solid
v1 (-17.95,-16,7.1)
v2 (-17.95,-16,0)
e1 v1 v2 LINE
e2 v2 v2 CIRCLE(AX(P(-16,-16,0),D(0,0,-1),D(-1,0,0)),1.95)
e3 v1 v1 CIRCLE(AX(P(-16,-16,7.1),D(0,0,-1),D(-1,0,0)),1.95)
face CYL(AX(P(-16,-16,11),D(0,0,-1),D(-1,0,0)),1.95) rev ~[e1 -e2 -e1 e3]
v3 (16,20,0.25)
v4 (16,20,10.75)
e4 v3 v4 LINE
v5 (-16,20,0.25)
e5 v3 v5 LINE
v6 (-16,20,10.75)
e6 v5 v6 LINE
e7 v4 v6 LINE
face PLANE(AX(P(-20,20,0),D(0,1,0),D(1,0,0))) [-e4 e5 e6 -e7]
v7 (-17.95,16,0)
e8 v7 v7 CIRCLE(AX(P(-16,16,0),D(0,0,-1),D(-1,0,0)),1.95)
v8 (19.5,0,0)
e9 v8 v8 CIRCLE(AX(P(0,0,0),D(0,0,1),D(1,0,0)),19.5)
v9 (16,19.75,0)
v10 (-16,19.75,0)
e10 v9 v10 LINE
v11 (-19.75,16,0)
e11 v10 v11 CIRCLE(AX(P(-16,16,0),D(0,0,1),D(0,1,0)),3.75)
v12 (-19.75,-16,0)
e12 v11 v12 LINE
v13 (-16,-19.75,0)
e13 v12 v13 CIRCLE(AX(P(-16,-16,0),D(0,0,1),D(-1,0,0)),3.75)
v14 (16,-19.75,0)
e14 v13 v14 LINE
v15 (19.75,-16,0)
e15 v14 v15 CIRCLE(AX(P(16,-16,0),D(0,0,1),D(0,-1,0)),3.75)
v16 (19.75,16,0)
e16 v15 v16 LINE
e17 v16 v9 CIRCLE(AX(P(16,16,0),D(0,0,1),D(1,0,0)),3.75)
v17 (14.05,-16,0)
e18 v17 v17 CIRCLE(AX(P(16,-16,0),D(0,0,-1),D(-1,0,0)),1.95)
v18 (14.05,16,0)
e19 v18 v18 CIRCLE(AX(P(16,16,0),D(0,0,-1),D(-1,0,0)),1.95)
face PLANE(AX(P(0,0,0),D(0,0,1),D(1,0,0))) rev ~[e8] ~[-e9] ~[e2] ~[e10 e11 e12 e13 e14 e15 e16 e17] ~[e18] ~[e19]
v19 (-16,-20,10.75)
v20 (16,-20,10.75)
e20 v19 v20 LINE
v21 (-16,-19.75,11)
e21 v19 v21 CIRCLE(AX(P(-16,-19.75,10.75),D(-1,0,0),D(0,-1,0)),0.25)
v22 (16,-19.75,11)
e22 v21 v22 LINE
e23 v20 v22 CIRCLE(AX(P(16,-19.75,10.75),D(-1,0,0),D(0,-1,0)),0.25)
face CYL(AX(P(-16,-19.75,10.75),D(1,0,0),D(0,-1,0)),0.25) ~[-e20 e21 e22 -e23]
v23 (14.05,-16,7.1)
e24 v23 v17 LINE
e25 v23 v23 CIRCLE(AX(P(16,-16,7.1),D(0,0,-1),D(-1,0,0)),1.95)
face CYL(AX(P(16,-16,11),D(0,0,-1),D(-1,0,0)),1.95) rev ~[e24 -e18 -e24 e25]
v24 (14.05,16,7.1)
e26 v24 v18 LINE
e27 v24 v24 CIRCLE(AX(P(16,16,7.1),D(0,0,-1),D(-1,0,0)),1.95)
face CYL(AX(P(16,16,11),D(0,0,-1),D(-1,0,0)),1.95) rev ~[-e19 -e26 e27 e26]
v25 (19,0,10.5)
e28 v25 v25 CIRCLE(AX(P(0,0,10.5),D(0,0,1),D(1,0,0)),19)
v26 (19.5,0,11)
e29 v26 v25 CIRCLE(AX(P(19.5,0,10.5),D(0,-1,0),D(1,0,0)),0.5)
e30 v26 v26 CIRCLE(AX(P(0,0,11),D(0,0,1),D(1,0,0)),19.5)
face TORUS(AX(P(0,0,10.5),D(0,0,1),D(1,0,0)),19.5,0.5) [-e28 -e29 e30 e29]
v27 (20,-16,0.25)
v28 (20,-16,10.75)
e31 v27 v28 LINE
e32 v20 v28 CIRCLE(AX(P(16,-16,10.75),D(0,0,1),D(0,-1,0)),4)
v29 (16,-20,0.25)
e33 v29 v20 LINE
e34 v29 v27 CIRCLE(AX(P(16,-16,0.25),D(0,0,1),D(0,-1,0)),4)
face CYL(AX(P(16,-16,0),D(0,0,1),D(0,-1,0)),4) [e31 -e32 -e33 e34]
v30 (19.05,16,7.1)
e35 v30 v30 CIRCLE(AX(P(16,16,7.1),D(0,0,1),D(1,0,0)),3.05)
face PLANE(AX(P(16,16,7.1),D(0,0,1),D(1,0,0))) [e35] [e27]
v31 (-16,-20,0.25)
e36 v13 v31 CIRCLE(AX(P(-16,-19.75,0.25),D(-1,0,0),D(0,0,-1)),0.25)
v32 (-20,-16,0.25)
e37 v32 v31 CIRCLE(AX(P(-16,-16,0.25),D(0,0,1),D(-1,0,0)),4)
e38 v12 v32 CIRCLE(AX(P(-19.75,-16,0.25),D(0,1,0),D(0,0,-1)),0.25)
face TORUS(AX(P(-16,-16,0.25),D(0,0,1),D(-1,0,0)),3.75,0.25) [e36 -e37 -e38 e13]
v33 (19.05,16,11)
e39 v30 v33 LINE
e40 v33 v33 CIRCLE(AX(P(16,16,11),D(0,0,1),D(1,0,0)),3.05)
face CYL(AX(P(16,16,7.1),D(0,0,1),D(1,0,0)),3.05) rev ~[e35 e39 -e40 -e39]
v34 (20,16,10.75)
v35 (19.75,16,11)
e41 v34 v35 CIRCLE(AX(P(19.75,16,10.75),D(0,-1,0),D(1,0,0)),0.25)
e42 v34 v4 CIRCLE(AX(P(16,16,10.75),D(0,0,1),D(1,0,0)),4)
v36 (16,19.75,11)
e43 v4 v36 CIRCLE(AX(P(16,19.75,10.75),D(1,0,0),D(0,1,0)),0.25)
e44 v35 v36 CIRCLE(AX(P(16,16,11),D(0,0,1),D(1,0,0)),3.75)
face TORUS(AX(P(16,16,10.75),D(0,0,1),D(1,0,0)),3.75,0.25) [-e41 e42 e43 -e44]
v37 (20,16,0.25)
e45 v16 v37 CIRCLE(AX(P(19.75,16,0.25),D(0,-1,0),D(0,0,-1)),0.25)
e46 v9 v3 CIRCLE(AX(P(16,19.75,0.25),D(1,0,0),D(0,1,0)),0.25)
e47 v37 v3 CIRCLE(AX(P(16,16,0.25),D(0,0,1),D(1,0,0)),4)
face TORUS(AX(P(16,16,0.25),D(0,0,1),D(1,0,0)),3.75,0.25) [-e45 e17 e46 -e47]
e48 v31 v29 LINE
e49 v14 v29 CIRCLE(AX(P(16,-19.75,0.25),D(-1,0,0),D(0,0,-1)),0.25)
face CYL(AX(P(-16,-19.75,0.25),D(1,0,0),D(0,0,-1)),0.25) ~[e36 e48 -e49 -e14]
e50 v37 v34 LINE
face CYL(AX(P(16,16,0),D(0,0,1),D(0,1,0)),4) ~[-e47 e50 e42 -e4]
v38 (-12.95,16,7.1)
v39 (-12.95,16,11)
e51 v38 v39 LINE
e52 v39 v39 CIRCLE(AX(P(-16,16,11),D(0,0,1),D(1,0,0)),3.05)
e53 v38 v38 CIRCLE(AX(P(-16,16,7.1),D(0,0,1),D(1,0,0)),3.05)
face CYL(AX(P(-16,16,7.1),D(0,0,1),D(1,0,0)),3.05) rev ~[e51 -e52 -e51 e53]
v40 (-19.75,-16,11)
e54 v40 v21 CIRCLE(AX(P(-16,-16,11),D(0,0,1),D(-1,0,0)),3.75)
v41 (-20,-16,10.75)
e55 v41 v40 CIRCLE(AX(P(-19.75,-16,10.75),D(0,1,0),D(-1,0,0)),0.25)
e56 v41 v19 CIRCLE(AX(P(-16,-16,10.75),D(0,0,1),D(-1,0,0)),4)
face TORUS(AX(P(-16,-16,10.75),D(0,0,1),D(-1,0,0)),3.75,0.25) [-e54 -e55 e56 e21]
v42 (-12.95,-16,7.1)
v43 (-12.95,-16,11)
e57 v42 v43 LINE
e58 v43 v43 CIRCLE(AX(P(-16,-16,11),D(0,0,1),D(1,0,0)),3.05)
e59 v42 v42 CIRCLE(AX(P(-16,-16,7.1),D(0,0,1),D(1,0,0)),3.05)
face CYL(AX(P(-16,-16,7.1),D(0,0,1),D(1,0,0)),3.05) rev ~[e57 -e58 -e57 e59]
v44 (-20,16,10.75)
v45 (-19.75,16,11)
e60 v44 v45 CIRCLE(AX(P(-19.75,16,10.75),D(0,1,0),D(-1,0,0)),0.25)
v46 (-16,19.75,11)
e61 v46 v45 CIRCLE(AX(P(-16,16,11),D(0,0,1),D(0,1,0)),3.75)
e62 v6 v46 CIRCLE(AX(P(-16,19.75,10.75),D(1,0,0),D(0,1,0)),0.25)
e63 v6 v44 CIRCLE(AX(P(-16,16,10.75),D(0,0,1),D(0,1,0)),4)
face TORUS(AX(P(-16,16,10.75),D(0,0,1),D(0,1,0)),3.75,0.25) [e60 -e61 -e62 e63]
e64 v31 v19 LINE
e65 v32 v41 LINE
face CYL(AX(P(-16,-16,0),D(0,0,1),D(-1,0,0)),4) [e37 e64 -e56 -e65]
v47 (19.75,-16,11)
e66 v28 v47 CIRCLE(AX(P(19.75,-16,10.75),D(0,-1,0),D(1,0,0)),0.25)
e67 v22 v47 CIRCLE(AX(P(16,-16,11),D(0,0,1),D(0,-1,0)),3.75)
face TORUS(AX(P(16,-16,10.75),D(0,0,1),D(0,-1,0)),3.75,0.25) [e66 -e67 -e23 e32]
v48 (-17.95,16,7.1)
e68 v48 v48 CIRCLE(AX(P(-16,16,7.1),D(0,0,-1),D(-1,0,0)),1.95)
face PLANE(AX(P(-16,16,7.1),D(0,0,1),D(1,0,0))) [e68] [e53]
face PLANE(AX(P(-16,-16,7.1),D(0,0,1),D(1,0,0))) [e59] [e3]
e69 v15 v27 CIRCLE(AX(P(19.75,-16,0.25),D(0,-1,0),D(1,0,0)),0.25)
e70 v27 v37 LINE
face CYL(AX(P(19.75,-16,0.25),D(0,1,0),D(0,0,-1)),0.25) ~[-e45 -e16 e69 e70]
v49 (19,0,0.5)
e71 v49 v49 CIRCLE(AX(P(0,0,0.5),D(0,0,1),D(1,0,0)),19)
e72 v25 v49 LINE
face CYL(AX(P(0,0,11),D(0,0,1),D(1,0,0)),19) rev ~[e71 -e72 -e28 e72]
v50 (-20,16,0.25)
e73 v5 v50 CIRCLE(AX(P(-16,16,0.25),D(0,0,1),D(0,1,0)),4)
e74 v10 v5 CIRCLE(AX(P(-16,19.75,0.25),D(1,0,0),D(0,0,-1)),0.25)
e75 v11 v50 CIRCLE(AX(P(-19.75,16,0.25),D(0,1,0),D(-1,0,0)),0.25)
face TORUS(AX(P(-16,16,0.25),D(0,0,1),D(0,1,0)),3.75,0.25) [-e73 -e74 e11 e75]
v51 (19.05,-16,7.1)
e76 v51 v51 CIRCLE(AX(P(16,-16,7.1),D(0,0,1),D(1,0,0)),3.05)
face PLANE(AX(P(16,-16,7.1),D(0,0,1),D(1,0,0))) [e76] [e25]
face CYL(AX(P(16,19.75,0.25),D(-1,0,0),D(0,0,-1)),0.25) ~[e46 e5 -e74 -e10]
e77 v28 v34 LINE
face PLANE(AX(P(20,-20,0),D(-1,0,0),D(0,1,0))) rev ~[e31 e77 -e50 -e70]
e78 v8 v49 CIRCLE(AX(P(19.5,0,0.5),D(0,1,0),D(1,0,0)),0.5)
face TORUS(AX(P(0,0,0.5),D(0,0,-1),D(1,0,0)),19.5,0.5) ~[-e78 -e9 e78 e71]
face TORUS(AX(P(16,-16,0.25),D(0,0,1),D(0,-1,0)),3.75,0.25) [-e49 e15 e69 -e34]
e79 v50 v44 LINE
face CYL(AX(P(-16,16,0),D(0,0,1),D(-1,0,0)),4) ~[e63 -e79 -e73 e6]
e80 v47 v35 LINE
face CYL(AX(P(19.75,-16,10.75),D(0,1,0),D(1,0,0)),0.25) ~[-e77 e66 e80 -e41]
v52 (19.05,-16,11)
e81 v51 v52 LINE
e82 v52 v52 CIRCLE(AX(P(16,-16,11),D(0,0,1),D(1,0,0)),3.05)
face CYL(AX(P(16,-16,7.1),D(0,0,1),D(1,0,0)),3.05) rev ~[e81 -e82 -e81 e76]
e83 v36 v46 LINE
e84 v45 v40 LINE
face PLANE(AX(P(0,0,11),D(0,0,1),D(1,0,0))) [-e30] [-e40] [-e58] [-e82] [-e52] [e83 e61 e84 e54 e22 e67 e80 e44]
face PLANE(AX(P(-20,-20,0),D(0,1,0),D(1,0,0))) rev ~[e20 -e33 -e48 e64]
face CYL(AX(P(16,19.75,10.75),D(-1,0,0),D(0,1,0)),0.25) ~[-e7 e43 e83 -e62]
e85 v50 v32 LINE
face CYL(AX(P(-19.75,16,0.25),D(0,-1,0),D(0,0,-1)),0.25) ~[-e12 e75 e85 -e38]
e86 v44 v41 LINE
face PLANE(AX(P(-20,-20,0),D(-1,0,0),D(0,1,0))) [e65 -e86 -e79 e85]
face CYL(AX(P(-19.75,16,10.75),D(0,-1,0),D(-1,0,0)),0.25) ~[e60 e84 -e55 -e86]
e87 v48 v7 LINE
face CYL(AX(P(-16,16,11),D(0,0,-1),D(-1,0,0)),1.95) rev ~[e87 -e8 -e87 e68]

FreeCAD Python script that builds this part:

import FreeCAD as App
import Part
import Sketcher

V = App.Vector


def edges_at(feature, points):
    """Names of the edges that pass closest to the given points."""
    edges = feature.Shape.Edges
    near = lambda p: min(range(len(edges)), key=lambda i: edges[i].distToShape(Part.Vertex(*p))[0])
    return sorted({f"Edge{near(p) + 1}" for p in points})

doc = App.newDocument("Part")
body = doc.addObject("PartDesign::Body", "Body")

sketch1 = body.newObject("Sketcher::SketchObject", "Sketch")
sketch1.AttachmentSupport = (doc.getObject("XY_Plane"), [""])
sketch1.MapMode = "FlatFace"
sketch1.addGeometry([
    Part.LineSegment(V(-20, 20, 0), V(-20, -20, 0)),
    Part.LineSegment(V(-20, -20, 0), V(20, -20, 0)),
    Part.LineSegment(V(20, -20, 0), V(20, 20, 0)),
    Part.LineSegment(V(20, 20, 0), V(-20, 20, 0)),
], False)
sketch1.addConstraint([
    Sketcher.Constraint("Coincident", 0, 2, 1, 1),
    Sketcher.Constraint("Coincident", 1, 2, 2, 1),
    Sketcher.Constraint("Coincident", 2, 2, 3, 1),
    Sketcher.Constraint("Coincident", 3, 2, 0, 1),
    Sketcher.Constraint("Vertical", 0),
    Sketcher.Constraint("Horizontal", 1),
    Sketcher.Constraint("Vertical", 2),
    Sketcher.Constraint("Horizontal", 3),
    Sketcher.Constraint("Symmetric", 0, 2, 2, 2, -1, 1),
    Sketcher.Constraint("Equal", 3, 0),
    Sketcher.Constraint("DistanceX", 1, 1, 1, 2, 40.0),
])
pad1 = body.newObject("PartDesign::Pad", "Pad")
pad1.Profile = sketch1
pad1.Length = 11

sketch2 = body.newObject("Sketcher::SketchObject", "Sketch001")
sketch2.AttachmentSupport = (doc.getObject("XY_Plane"), [""])
sketch2.MapMode = "FlatFace"
sketch2.AttachmentOffset = App.Placement(V(0, 0, 11), App.Rotation())
sketch2.addGeometry(Part.Circle(V(0, 0, 0), V(0, 0, 1), 19), False)
sketch2.addConstraint([
    Sketcher.Constraint("Coincident", 0, 3, -1, 1),
    Sketcher.Constraint("Diameter", 0, 38.0),
])
pocket1 = body.newObject("PartDesign::Pocket", "Pocket")
pocket1.Profile = sketch2
pocket1.Type = "ThroughAll"

sketch3 = body.newObject("Sketcher::SketchObject", "Sketch002")
sketch3.AttachmentSupport = (doc.getObject("XY_Plane"), [""])
sketch3.MapMode = "FlatFace"
sketch3.AttachmentOffset = App.Placement(V(0, 0, 11), App.Rotation())
sketch3.addGeometry([
    Part.Circle(V(16, 16, 0), V(0, 0, 1), 1.9),
    Part.Circle(V(16, -16, 0), V(0, 0, 1), 1.9),
    Part.Circle(V(-16, 16, 0), V(0, 0, 1), 1.9),
    Part.Circle(V(-16, -16, 0), V(0, 0, 1), 1.9),
], False)
sketch3.addConstraint([
    Sketcher.Constraint("Equal", 0, 1),
    Sketcher.Constraint("Equal", 1, 2),
    Sketcher.Constraint("Equal", 2, 3),
    Sketcher.Constraint("Symmetric", 1, 3, 2, 3, -1, 1),
    Sketcher.Constraint("Symmetric", 0, 3, 3, 3, -1, 1),
    Sketcher.Constraint("Symmetric", 0, 3, 2, 3, -2),
    Sketcher.Constraint("Diameter", 0, 3.9),
    Sketcher.Constraint("DistanceX", -1, 1, 0, 3, 16.0),
    Sketcher.Constraint("DistanceY", -1, 1, 0, 3, 16.0),
])
doc.recompute()
hole = body.newObject("PartDesign::Hole", "Hole")
hole.Profile = sketch3
hole.ThreadType = "None"
hole.Diameter = 3.9
hole.DepthType = "Dimension"
hole.Depth = 25
hole.DrillPoint = "Flat"
hole.HoleCutType = "Counterbore"
hole.HoleCutDiameter = 6.1
hole.HoleCutDepth = 3.9
doc.recompute()

fillet = body.newObject("PartDesign::Fillet", "Fillet")
fillet.Base = (hole, edges_at(hole, [
    (20, 20, 5.5),
    (-20, 20, 5.5),
    (-20, -20, 5.5),
    (20, -20, 5.5),
]))
fillet.Radius = 4
doc.recompute()

fillet2 = body.newObject("PartDesign::Fillet", "Fillet001")
fillet2.Base = (fillet, edges_at(fillet, [(-19, 0, 11), (19, 0, 5.5), (-19, 0, 0)]))
fillet2.Radius = 0.5
doc.recompute()

fillet3 = body.newObject("PartDesign::Fillet", "Fillet002")
fillet3.Base = (fillet2, edges_at(fillet2, [
    (0, -20, 0),
    (16, -20, 5.5),
    (-16, -20, 5.5),
    (0, -20, 11),
    (20, 0, 0),
    (20, 16, 5.5),
    (20, -16, 5.5),
    (20, 0, 11),
    (0, 20, 0),
    (-16, 20, 5.5),
    (16, 20, 5.5),
    (0, 20, 11),
    (-20, 0, 0),
    (-20, -16, 5.5),
    (-20, 16, 5.5),
    (-20, 0, 11),
]))
fillet3.Radius = 0.25

doc.recompute()
